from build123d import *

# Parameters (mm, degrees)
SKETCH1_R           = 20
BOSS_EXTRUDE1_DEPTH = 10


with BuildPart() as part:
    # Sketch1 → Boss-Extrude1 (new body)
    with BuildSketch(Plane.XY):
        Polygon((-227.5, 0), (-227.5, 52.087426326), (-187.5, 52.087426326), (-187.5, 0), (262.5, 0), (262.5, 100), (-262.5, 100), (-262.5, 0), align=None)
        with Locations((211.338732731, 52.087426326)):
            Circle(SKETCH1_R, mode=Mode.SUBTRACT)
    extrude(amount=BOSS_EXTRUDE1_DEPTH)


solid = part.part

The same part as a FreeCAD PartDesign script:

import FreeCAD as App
import Part
import Sketcher


def add_polygon(sketch, points):
    """Adds a closed chain of lines whose ends are joined by coincident constraints."""
    first, n = sketch.GeometryCount, len(points)
    for a, b in zip(points, points[1:] + points[:1]):
        sketch.addGeometry(Part.LineSegment(App.Vector(*a, 0), App.Vector(*b, 0)), False)
    for i in range(n):
        sketch.addConstraint(Sketcher.Constraint("Coincident", first + i, 2, first + (i + 1) % n, 1))

doc = App.newDocument("Part")
body = doc.addObject("PartDesign::Body", "Body")

sketch1 = body.newObject("Sketcher::SketchObject", "Sketch")
sketch1.AttachmentSupport = (doc.getObject("XY_Plane"), [""])
sketch1.MapMode = "FlatFace"
add_polygon(sketch1, [(-228, 0), (-228, 52), (-188, 52), (-188, 0), (262, 0), (262, 100), (-262, 100), (-262, 0)])
sketch1.addGeometry(Part.Circle(App.Vector(211, 52, 0), App.Vector(0, 0, 1), 20), False)
sketch1.addConstraint([
    Sketcher.Constraint("Vertical", 0),
    Sketcher.Constraint("Horizontal", 1),
    Sketcher.Constraint("Vertical", 2),
    Sketcher.Constraint("Horizontal", 3),
    Sketcher.Constraint("Vertical", 4),
    Sketcher.Constraint("Horizontal", 5),
    Sketcher.Constraint("Vertical", 6),
    Sketcher.Constraint("Horizontal", 7),
    Sketcher.Constraint("Symmetric", 3, 2, 6, 2, -1, 1),
    Sketcher.Constraint("PointOnObject", 2, 2, -1),
    Sketcher.Constraint("Horizontal", 8, 3, 0, 2),
    Sketcher.Constraint("Diameter", 8, 40.0),
    Sketcher.Constraint("DistanceX", 1, 1, 1, 2, 40.0),
    Sketcher.Constraint("DistanceX", 3, 1, 3, 2, 450.0),
    Sketcher.Constraint("DistanceX", 5, 2, 5, 1, 525.0),
    Sketcher.Constraint("DistanceY", 4, 1, 4, 2, 100.0),
    Sketcher.Constraint("DistanceY", 0, 1, 0, 2, 52.087426),
    Sketcher.Constraint("DistanceX", -1, 1, 8, 3, 211.338733),
])
pad1 = body.newObject("PartDesign::Pad", "Pad")
pad1.Profile = sketch1
pad1.Length = 10

doc.recompute()
